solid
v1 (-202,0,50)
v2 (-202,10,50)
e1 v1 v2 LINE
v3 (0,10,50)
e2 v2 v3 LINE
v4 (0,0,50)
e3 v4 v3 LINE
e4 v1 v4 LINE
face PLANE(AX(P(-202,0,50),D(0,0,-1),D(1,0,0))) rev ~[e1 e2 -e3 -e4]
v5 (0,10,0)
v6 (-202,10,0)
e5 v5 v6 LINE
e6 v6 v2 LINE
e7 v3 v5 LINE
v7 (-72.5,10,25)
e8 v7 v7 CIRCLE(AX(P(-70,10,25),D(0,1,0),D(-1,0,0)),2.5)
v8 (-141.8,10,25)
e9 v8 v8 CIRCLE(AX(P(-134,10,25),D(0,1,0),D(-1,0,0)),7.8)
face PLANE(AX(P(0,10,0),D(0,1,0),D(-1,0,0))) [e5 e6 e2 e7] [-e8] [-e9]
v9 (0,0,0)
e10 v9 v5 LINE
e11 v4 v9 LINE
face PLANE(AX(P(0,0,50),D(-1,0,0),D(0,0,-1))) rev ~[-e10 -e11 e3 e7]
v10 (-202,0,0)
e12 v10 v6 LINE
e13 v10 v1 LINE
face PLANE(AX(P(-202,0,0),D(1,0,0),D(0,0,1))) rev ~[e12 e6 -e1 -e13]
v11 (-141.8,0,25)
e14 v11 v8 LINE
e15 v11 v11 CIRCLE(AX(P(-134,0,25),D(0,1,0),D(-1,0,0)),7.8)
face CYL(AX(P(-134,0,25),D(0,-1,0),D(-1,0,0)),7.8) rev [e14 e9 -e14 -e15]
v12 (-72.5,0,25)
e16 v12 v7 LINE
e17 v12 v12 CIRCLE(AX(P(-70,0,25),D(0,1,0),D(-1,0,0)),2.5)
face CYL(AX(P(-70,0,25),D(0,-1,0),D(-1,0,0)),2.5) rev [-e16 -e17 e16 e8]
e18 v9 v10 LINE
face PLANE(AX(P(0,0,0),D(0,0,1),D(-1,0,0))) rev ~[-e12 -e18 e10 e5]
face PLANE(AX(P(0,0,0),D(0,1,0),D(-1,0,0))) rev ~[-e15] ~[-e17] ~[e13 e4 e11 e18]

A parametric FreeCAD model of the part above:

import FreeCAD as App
import Part
import Sketcher

V = App.Vector


def add_polygon(sketch, points):
    """Adds a closed chain of lines whose ends are joined by coincident constraints."""
    first, n = sketch.GeometryCount, len(points)
    for a, b in zip(points, points[1:] + points[:1]):
        sketch.addGeometry(Part.LineSegment(App.Vector(*a, 0), App.Vector(*b, 0)), False)
    for i in range(n):
        sketch.addConstraint(Sketcher.Constraint("Coincident", first + i, 2, first + (i + 1) % n, 1))

doc = App.newDocument("Part")
body = doc.addObject("PartDesign::Body", "Body")

# Sketch on XZ plane
sketch1 = body.newObject("Sketcher::SketchObject", "Sketch")
sketch1.AttachmentSupport = (doc.getObject("XZ_Plane"), [""])
sketch1.MapMode = "FlatFace"
add_polygon(sketch1, [(0, 50), (0, 0), (-202, 0), (-202, 50)])  # lines 0-3
sketch1.addGeometry(Part.Circle(V(-70, 25, 0), V(0, 0, 1), 2.5), False)  # 4
sketch1.addGeometry(Part.Circle(V(-134, 25, 0), V(0, 0, 1), 7.8), False)  # 5
sketch1.addConstraint(Sketcher.Constraint("Vertical", 0))
sketch1.addConstraint(Sketcher.Constraint("Horizontal", 1))
sketch1.addConstraint(Sketcher.Constraint("Vertical", 2))
sketch1.addConstraint(Sketcher.Constraint("Horizontal", 3))
sketch1.addConstraint(Sketcher.Constraint("Coincident", 0, 2, -1, 1))
sketch1.addConstraint(Sketcher.Constraint("Horizontal", 4, 3, 5, 3))
sketch1.addConstraint(Sketcher.Constraint("Diameter", 4, 5.0))
sketch1.addConstraint(Sketcher.Constraint("Diameter", 5, 15.6))
sketch1.addConstraint(Sketcher.Constraint("DistanceX", 1, 2, 1, 1, 202.0))
sketch1.addConstraint(Sketcher.Constraint("DistanceY", 0, 2, 0, 1, 50.0))
sketch1.addConstraint(Sketcher.Constraint("DistanceX", 4, 3, -1, 1, 70.0))
sketch1.addConstraint(Sketcher.Constraint("DistanceY", -1, 1, 4, 3, 25.0))
sketch1.addConstraint(Sketcher.Constraint("DistanceX", 5, 3, -1, 1, 134.0))
pad1 = body.newObject("PartDesign::Pad", "Pad")
pad1.Profile = sketch1
pad1.Length = 10
pad1.Reversed = True

doc.recompute()
